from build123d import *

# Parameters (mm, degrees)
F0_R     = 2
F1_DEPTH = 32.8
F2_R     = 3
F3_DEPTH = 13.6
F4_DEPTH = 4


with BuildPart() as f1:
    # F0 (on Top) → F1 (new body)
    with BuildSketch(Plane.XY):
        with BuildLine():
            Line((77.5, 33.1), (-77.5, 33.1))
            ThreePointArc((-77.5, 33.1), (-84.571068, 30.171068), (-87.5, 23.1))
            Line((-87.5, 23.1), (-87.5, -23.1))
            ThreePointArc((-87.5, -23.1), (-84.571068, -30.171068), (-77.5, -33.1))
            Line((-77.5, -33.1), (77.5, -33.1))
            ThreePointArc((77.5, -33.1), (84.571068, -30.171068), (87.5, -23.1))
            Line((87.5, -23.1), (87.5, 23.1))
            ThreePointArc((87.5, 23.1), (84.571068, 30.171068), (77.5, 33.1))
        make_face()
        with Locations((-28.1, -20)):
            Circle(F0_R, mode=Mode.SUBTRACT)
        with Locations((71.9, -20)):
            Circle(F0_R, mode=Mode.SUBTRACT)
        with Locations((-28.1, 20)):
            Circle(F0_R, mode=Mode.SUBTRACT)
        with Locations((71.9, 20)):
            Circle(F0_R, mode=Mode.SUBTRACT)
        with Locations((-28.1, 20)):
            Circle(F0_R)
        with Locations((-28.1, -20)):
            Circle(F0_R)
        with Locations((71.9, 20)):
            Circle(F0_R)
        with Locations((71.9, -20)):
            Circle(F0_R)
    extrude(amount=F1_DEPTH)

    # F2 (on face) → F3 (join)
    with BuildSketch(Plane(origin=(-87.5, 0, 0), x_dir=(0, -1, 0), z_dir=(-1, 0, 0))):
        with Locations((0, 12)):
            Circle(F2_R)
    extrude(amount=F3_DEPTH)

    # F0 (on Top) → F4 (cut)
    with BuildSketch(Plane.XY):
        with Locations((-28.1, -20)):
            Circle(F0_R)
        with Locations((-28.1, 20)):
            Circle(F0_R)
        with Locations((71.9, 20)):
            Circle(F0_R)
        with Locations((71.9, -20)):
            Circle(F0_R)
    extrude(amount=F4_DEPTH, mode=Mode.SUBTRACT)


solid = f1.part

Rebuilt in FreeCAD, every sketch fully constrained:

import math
import FreeCAD as App
import Part
import Sketcher

doc = App.newDocument("Part")
body = doc.addObject("PartDesign::Body", "Body")

# Sketch on XY plane
sketch1 = doc.addObject("Sketcher::SketchObject", "Sketch")
body.addObject(sketch1)
sketch1.AttachmentSupport = (doc.XY_Plane, [""])
sketch1.MapMode = "FlatFace"
sketch1.addGeometry([
    Part.LineSegment(App.Vector(77.5, 33.1, 0), App.Vector(-77.5, 33.1, 0)),  # 0
    Part.ArcOfCircle(Part.Circle(App.Vector(-77.500001, 23.100001, 0), App.Vector(0, 0, 1), 9.999999), math.radians(89.999996), math.radians(180.000004)),  # 1
    Part.LineSegment(App.Vector(-87.5, 23.1, 0), App.Vector(-87.5, -23.1, 0)),  # 2
    Part.ArcOfCircle(Part.Circle(App.Vector(-77.500001, -23.100001, 0), App.Vector(0, 0, 1), 9.999999), math.radians(179.999996), math.radians(270.000004)),  # 3
    Part.LineSegment(App.Vector(-77.5, -33.1, 0), App.Vector(77.5, -33.1, 0)),  # 4
    Part.ArcOfCircle(Part.Circle(App.Vector(77.500001, -23.100001, 0), App.Vector(0, 0, 1), 9.999999), math.radians(-90.000004), math.radians(0.000004)),  # 5
    Part.LineSegment(App.Vector(87.5, -23.1, 0), App.Vector(87.5, 23.1, 0)),  # 6
    Part.ArcOfCircle(Part.Circle(App.Vector(77.500001, 23.100001, 0), App.Vector(0, 0, 1), 9.999999), math.radians(-0.000004), math.radians(90.000004)),  # 7
], False)
sketch1.addConstraint([
    Sketcher.Constraint("Tangent", 0, 2, 1, 1),
    Sketcher.Constraint("Tangent", 1, 2, 2, 1),
    Sketcher.Constraint("Tangent", 2, 2, 3, 1),
    Sketcher.Constraint("Tangent", 3, 2, 4, 1),
    Sketcher.Constraint("Tangent", 4, 2, 5, 1),
    Sketcher.Constraint("Tangent", 5, 2, 6, 1),
    Sketcher.Constraint("Tangent", 6, 2, 7, 1),
    Sketcher.Constraint("Tangent", 7, 2, 0, 1),
    Sketcher.Constraint("Horizontal", 0),
    Sketcher.Constraint("Vertical", 2),
    Sketcher.Constraint("Horizontal", 4),
    Sketcher.Constraint("Vertical", 6),
    Sketcher.Constraint("Equal", 1, 3),
    Sketcher.Constraint("Equal", 3, 5),
    Sketcher.Constraint("Equal", 5, 7),
    Sketcher.Constraint("Symmetric", 1, 3, 5, 3, -1, 1),
    Sketcher.Constraint("Radius", 1, 9.999999),
    Sketcher.Constraint("DistanceX", 0, 2, 0, 1, 155.0),
    Sketcher.Constraint("DistanceY", 2, 2, 2, 1, 46.2),
])
pad1 = doc.addObject("PartDesign::Pad", "Pad")
body.addObject(pad1)
pad1.Profile = sketch1
pad1.Length = 32.8

# Sketch on YZ plane
sketch2 = doc.addObject("Sketcher::SketchObject", "Sketch001")
body.addObject(sketch2)
sketch2.AttachmentSupport = (doc.YZ_Plane, [""])
sketch2.MapMode = "FlatFace"
sketch2.AttachmentOffset = App.Placement(App.Vector(0, 0, -87.5), App.Rotation())
sketch2.addGeometry(Part.Circle(App.Vector(0, 12, 0), App.Vector(0, 0, 1), 3), False)
sketch2.addConstraint([
    Sketcher.Constraint("PointOnObject", 0, 3, -2),
    Sketcher.Constraint("Diameter", 0, 6.0),
    Sketcher.Constraint("DistanceY", -1, 1, 0, 3, 12.0),
])
pad2 = doc.addObject("PartDesign::Pad", "Pad001")
body.addObject(pad2)
pad2.Profile = sketch2
pad2.Length = 13.6
pad2.Reversed = True

# Sketch on XY plane
sketch3 = doc.addObject("Sketcher::SketchObject", "Sketch002")
body.addObject(sketch3)
sketch3.AttachmentSupport = (doc.XY_Plane, [""])
sketch3.MapMode = "FlatFace"
sketch3.addGeometry([
    Part.Circle(App.Vector(-28.1, -20, 0), App.Vector(0, 0, 1), 2),
    Part.Circle(App.Vector(-28.1, 20, 0), App.Vector(0, 0, 1), 2),
    Part.Circle(App.Vector(71.9, 20, 0), App.Vector(0, 0, 1), 2),
    Part.Circle(App.Vector(71.9, -20, 0), App.Vector(0, 0, 1), 2),
], False)
sketch3.addConstraint([
    Sketcher.Constraint("Equal", 0, 1),
    Sketcher.Constraint("Equal", 1, 2),
    Sketcher.Constraint("Equal", 2, 3),
    Sketcher.Constraint("Symmetric", 0, 3, 1, 3, -1),
    Sketcher.Constraint("Symmetric", 2, 3, 3, 3, -1),
    Sketcher.Constraint("Horizontal", 1, 3, 2, 3),
    Sketcher.Constraint("Diameter", 0, 4.0),
    Sketcher.Constraint("DistanceY", 0, 3, -1, 1, 20.0),
    Sketcher.Constraint("DistanceX", 1, 3, 2, 3, 100.0),
    Sketcher.Constraint("DistanceX", 0, 3, -1, 1, 28.1),
])
pocket1 = doc.addObject("PartDesign::Pocket", "Pocket")
body.addObject(pocket1)
pocket1.Profile = sketch3
pocket1.Length = 4
pocket1.Reversed = True

doc.recompute()
